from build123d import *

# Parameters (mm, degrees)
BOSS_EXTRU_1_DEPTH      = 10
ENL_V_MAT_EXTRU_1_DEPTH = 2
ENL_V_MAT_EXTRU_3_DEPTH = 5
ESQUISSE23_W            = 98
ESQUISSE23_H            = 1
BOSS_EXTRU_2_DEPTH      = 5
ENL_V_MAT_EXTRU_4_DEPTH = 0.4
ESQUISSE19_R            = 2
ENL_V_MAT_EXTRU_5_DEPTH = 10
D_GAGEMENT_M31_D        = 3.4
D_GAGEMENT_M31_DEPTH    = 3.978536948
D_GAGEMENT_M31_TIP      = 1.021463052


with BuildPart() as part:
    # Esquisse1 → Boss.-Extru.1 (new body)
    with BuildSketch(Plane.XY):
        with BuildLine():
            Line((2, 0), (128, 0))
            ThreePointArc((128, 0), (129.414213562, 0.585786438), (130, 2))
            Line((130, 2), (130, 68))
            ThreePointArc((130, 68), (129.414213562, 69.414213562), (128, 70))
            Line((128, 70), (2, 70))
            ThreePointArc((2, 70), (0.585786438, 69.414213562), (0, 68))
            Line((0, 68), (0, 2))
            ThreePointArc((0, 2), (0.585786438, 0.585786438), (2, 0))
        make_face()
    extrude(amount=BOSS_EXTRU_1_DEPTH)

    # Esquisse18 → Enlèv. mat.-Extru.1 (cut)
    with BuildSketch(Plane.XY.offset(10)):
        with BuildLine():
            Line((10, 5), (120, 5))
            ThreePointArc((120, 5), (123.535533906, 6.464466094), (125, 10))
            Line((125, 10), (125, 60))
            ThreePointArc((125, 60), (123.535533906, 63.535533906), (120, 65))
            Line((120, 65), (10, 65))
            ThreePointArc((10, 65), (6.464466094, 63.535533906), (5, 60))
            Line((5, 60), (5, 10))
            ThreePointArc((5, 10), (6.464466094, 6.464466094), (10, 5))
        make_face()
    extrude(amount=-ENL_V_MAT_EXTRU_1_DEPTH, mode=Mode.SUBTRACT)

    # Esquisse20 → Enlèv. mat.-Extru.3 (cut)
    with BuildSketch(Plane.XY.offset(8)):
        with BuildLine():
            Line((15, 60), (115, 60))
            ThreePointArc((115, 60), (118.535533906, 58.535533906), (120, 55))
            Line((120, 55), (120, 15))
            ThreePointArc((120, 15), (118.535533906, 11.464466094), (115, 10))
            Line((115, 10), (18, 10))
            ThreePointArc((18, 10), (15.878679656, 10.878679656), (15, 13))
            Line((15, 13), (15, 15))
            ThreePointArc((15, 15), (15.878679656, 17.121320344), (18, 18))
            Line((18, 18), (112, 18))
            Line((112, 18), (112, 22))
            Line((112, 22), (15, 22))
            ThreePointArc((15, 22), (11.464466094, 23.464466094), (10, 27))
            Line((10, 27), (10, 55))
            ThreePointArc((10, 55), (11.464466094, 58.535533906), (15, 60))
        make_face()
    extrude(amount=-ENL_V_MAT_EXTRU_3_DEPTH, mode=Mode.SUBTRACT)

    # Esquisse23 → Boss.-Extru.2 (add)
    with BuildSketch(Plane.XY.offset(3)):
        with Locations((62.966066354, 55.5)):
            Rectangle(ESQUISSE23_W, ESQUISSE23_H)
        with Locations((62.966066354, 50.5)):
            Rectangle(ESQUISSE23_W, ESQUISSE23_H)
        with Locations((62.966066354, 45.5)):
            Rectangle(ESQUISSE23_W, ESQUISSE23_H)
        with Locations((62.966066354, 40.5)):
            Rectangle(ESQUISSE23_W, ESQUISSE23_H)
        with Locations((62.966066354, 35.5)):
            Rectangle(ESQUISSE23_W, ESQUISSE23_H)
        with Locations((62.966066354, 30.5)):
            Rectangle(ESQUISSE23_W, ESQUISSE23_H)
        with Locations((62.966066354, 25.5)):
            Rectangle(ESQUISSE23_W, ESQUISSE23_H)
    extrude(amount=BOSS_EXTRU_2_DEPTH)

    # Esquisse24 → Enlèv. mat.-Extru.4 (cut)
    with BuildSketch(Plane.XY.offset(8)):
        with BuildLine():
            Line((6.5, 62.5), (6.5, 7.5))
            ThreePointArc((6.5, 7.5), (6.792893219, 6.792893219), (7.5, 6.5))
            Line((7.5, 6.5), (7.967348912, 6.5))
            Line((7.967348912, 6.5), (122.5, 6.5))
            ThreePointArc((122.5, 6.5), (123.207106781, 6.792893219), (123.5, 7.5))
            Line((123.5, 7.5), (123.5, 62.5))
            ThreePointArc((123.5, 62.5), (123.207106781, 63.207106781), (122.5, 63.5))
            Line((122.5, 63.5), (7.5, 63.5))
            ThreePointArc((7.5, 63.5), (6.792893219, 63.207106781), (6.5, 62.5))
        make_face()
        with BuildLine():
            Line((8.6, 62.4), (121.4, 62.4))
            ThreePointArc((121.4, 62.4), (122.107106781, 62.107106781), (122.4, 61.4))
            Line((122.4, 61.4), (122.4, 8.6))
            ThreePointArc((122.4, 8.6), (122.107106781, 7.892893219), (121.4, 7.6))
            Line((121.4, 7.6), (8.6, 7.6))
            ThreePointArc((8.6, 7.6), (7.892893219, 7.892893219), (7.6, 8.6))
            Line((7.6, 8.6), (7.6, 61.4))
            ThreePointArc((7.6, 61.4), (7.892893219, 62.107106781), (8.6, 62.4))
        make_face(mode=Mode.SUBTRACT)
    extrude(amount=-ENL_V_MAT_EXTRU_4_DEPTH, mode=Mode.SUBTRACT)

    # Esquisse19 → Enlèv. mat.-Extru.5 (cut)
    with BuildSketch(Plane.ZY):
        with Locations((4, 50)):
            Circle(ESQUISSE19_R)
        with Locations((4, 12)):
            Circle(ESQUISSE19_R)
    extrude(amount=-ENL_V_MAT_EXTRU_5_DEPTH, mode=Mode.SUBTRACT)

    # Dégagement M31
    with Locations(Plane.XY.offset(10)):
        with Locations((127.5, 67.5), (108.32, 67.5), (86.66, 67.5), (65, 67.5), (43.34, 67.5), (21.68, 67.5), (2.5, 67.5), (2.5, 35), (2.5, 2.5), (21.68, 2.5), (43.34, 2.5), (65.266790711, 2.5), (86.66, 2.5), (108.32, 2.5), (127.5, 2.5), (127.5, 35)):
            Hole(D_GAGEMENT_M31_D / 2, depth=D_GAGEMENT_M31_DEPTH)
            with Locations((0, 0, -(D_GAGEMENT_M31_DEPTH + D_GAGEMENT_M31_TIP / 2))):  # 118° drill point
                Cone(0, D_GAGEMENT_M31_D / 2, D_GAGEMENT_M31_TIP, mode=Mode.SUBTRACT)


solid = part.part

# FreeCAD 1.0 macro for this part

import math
import FreeCAD as App
import Part
import Sketcher
from FreeCAD import Vector
Q = App.Units.Quantity


def add_polygon(sketch, points):
    """Adds a closed chain of lines whose ends are joined by coincident constraints."""
    first, n = sketch.GeometryCount, len(points)
    for a, b in zip(points, points[1:] + points[:1]):
        sketch.addGeometry(Part.LineSegment(App.Vector(*a, 0), App.Vector(*b, 0)), False)
    for i in range(n):
        sketch.addConstraint(Sketcher.Constraint("Coincident", first + i, 2, first + (i + 1) % n, 1))

doc = App.newDocument("Part")
params = doc.addObject("Spreadsheet::Sheet", "Params")
for row, (alias, value) in enumerate([
    ("sketch1_radius", "2 mm"),
    ("sketch1_width", "126 mm"),
    ("sketch1_height", "66 mm"),
    ("pad1_length", "10 mm"),
    ("sketch2_radius", "5 mm"),
    ("sketch2_width", "110 mm"),
    ("sketch2_height", "50 mm"),
    ("pocket1_length", "2 mm"),
    ("sketch3_radius", "5 mm"),
    ("sketch3_radius2", "3 mm"),
    ("sketch3_width", "100 mm"),
    ("sketch3_height", "28 mm"),
    ("sketch3_height2", "4 mm"),
    ("pocket2_length", "5 mm"),
    ("sketch4_width", "98 mm"),
    ("sketch4_height", "1 mm"),
    ("pad2_length", "5 mm"),
    ("sketch5_radius", "1 mm"),
    ("sketch5_width", "115 mm"),
    ("sketch5_height", "55 mm"),
    ("sketch5_width2", "112.8 mm"),
    ("sketch5_height2", "52.8 mm"),
    ("pocket3_length", "0.4 mm"),
    ("sketch6_diameter", "4 mm"),
    ("pocket4_length", "10 mm"),
    ("sketch7_diameter", "3.4 mm"),
    ("hole_diameter", "3.4 mm"),
    ("hole_depth", "3.978537 mm"),
], start=1):
    params.set(f"A{row}", alias)
    params.set(f"B{row}", "=" + value)
    params.setAlias(f"B{row}", alias)

body = doc.addObject("PartDesign::Body", "Body")

# Sketch on XY plane
sketch1 = body.newObject("Sketcher::SketchObject", "Sketch")
sketch1.AttachmentSupport = (doc.getObject("XY_Plane"), [""])
sketch1.MapMode = "FlatFace"
sketch1.addGeometry([
    Part.LineSegment(Vector(2, 0, 0), Vector(128, 0, 0)),  # 0
    Part.ArcOfCircle(Part.Circle(Vector(128, 2, 0), Vector(0, 0, 1), 2), math.radians(-90), math.radians(0)),  # 1
    Part.LineSegment(Vector(130, 2, 0), Vector(130, 68, 0)),  # 2
    Part.ArcOfCircle(Part.Circle(Vector(128, 68, 0), Vector(0, 0, 1), 2), math.radians(0), math.radians(90)),  # 3
    Part.LineSegment(Vector(128, 70, 0), Vector(2, 70, 0)),  # 4
    Part.ArcOfCircle(Part.Circle(Vector(2, 68, 0), Vector(0, 0, 1), 2), math.radians(90), math.radians(180)),  # 5
    Part.LineSegment(Vector(0, 68, 0), Vector(0, 2, 0)),  # 6
    Part.ArcOfCircle(Part.Circle(Vector(2, 2, 0), Vector(0, 0, 1), 2), math.radians(-180), math.radians(-90)),  # 7
], False)
sketch1.addConstraint([
    Sketcher.Constraint("Tangent", 0, 2, 1, 1),
    Sketcher.Constraint("Tangent", 1, 2, 2, 1),
    Sketcher.Constraint("Tangent", 2, 2, 3, 1),
    Sketcher.Constraint("Tangent", 3, 2, 4, 1),
    Sketcher.Constraint("Tangent", 4, 2, 5, 1),
    Sketcher.Constraint("Tangent", 5, 2, 6, 1),
    Sketcher.Constraint("Tangent", 6, 2, 7, 1),
    Sketcher.Constraint("Tangent", 7, 2, 0, 1),
    Sketcher.Constraint("Horizontal", 0),
    Sketcher.Constraint("Vertical", 2),
    Sketcher.Constraint("Horizontal", 4),
    Sketcher.Constraint("Vertical", 6),
    Sketcher.Constraint("Equal", 1, 3),
    Sketcher.Constraint("Equal", 3, 5),
    Sketcher.Constraint("Equal", 5, 7),
    Sketcher.Constraint("PointOnObject", 0, 2, -1),
    Sketcher.Constraint("PointOnObject", 5, 2, -2),
    Sketcher.Constraint("Radius", 1, Q("2 mm")),
    Sketcher.Constraint("DistanceX", 0, 1, 0, 2, Q("126 mm")),
    Sketcher.Constraint("DistanceY", 2, 1, 2, 2, Q("66 mm")),
])
sketch1.setExpression("Constraints[17]", "Params.sketch1_radius")
sketch1.setExpression("Constraints[18]", "Params.sketch1_width")
sketch1.setExpression("Constraints[19]", "Params.sketch1_height")
pad1 = body.newObject("PartDesign::Pad", "Pad")
pad1.Profile = sketch1
pad1.setExpression("Length", "Params.pad1_length")

# Sketch on XY plane
sketch2 = body.newObject("Sketcher::SketchObject", "Sketch001")
sketch2.AttachmentSupport = (doc.getObject("XY_Plane"), [""])
sketch2.MapMode = "FlatFace"
sketch2.AttachmentOffset = App.Placement(Vector(0, 0, 10), App.Rotation())
sketch2.addGeometry([
    Part.LineSegment(Vector(10, 5, 0), Vector(120, 5, 0)),  # 0
    Part.ArcOfCircle(Part.Circle(Vector(120, 10, 0), Vector(0, 0, 1), 5), math.radians(-90), math.radians(0)),  # 1
    Part.LineSegment(Vector(125, 10, 0), Vector(125, 60, 0)),  # 2
    Part.ArcOfCircle(Part.Circle(Vector(120, 60, 0), Vector(0, 0, 1), 5), math.radians(0), math.radians(90)),  # 3
    Part.LineSegment(Vector(120, 65, 0), Vector(10, 65, 0)),  # 4
    Part.ArcOfCircle(Part.Circle(Vector(10, 60, 0), Vector(0, 0, 1), 5), math.radians(90), math.radians(180)),  # 5
    Part.LineSegment(Vector(5, 60, 0), Vector(5, 10, 0)),  # 6
    Part.ArcOfCircle(Part.Circle(Vector(10, 10, 0), Vector(0, 0, 1), 5), math.radians(180), math.radians(270)),  # 7
], False)
sketch2.addConstraint([
    Sketcher.Constraint("Tangent", 0, 2, 1, 1),
    Sketcher.Constraint("Tangent", 1, 2, 2, 1),
    Sketcher.Constraint("Tangent", 2, 2, 3, 1),
    Sketcher.Constraint("Tangent", 3, 2, 4, 1),
    Sketcher.Constraint("Tangent", 4, 2, 5, 1),
    Sketcher.Constraint("Tangent", 5, 2, 6, 1),
    Sketcher.Constraint("Tangent", 6, 2, 7, 1),
    Sketcher.Constraint("Tangent", 7, 2, 0, 1),
    Sketcher.Constraint("Horizontal", 0),
    Sketcher.Constraint("Vertical", 2),
    Sketcher.Constraint("Horizontal", 4),
    Sketcher.Constraint("Vertical", 6),
    Sketcher.Constraint("Equal", 1, 3),
    Sketcher.Constraint("Equal", 3, 5),
    Sketcher.Constraint("Equal", 5, 7),
    Sketcher.Constraint("Radius", 1, Q("5 mm")),
    Sketcher.Constraint("DistanceX", 0, 1, 0, 2, Q("110 mm")),
    Sketcher.Constraint("DistanceY", 2, 1, 2, 2, Q("50 mm")),
    Sketcher.Constraint("DistanceX", -1, 1, 1, 3, Q("120 mm")),
    Sketcher.Constraint("DistanceY", -1, 1, 1, 3, Q("10 mm")),
])
sketch2.setExpression("Constraints[15]", "Params.sketch2_radius")
sketch2.setExpression("Constraints[16]", "Params.sketch2_width")
sketch2.setExpression("Constraints[17]", "Params.sketch2_height")
pocket1 = body.newObject("PartDesign::Pocket", "Pocket")
pocket1.Profile = sketch2
pocket1.setExpression("Length", "Params.pocket1_length")

# Sketch on XY plane
sketch3 = body.newObject("Sketcher::SketchObject", "Sketch002")
sketch3.AttachmentSupport = (doc.getObject("XY_Plane"), [""])
sketch3.MapMode = "FlatFace"
sketch3.AttachmentOffset = App.Placement(Vector(0, 0, 8), App.Rotation())
sketch3.addGeometry([
    Part.LineSegment(Vector(115, 60, 0), Vector(15, 60, 0)),  # 0
    Part.ArcOfCircle(Part.Circle(Vector(15, 55, 0), Vector(0, 0, 1), 5), math.radians(90), math.radians(180)),  # 1
    Part.LineSegment(Vector(10, 55, 0), Vector(10, 27, 0)),  # 2
    Part.ArcOfCircle(Part.Circle(Vector(15, 27, 0), Vector(0, 0, 1), 5), math.radians(180), math.radians(270)),  # 3
    Part.LineSegment(Vector(15, 22, 0), Vector(112, 22, 0)),  # 4
    Part.LineSegment(Vector(112, 22, 0), Vector(112, 18, 0)),  # 5
    Part.LineSegment(Vector(112, 18, 0), Vector(18, 18, 0)),  # 6
    Part.ArcOfCircle(Part.Circle(Vector(18, 15, 0), Vector(0, 0, 1), 3), math.radians(90), math.radians(180)),  # 7
    Part.LineSegment(Vector(15, 15, 0), Vector(15, 13, 0)),  # 8
    Part.ArcOfCircle(Part.Circle(Vector(18, 13, 0), Vector(0, 0, 1), 3), math.radians(180), math.radians(270)),  # 9
    Part.LineSegment(Vector(18, 10, 0), Vector(115, 10, 0)),  # 10
    Part.ArcOfCircle(Part.Circle(Vector(115, 15, 0), Vector(0, 0, 1), 5), math.radians(-90), math.radians(0)),  # 11
    Part.LineSegment(Vector(120, 15, 0), Vector(120, 55, 0)),  # 12
    Part.ArcOfCircle(Part.Circle(Vector(115, 55, 0), Vector(0, 0, 1), 5), math.radians(0), math.radians(90)),  # 13
], False)
sketch3.addConstraint([
    Sketcher.Constraint("Tangent", 0, 2, 1, 1),
    Sketcher.Constraint("Tangent", 1, 2, 2, 1),
    Sketcher.Constraint("Tangent", 2, 2, 3, 1),
    Sketcher.Constraint("Tangent", 3, 2, 4, 1),
    Sketcher.Constraint("Coincident", 4, 2, 5, 1),
    Sketcher.Constraint("Coincident", 5, 2, 6, 1),
    Sketcher.Constraint("Tangent", 6, 2, 7, 1),
    Sketcher.Constraint("Tangent", 7, 2, 8, 1),
    Sketcher.Constraint("Tangent", 8, 2, 9, 1),
    Sketcher.Constraint("Tangent", 9, 2, 10, 1),
    Sketcher.Constraint("Tangent", 10, 2, 11, 1),
    Sketcher.Constraint("Tangent", 11, 2, 12, 1),
    Sketcher.Constraint("Tangent", 12, 2, 13, 1),
    Sketcher.Constraint("Tangent", 13, 2, 0, 1),
    Sketcher.Constraint("Horizontal", 0),
    Sketcher.Constraint("Vertical", 2),
    Sketcher.Constraint("Horizontal", 4),
    Sketcher.Constraint("Vertical", 5),
    Sketcher.Constraint("Horizontal", 6),
    Sketcher.Constraint("Vertical", 8),
    Sketcher.Constraint("Horizontal", 10),
    Sketcher.Constraint("Vertical", 12),
    Sketcher.Constraint("Equal", 1, 3),
    Sketcher.Constraint("Equal", 7, 9),
    Sketcher.Constraint("Equal", 3, 11),
    Sketcher.Constraint("Equal", 11, 13),
    Sketcher.Constraint("Horizontal", 7, 3, 11, 3),
    Sketcher.Constraint("Vertical", 3, 2, 7, 2),
    Sketcher.Constraint("Equal", 4, 10),
    Sketcher.Constraint("Radius", 1, Q("5 mm")),
    Sketcher.Constraint("Radius", 7, Q("3 mm")),
    Sketcher.Constraint("DistanceX", 0, 2, 0, 1, Q("100 mm")),
    Sketcher.Constraint("DistanceY", 2, 2, 2, 1, Q("28 mm")),
    Sketcher.Constraint("DistanceY", 5, 2, 5, 1, Q("4 mm")),
    Sketcher.Constraint("DistanceX", -1, 1, 1, 3, Q("15 mm")),
    Sketcher.Constraint("DistanceY", -1, 1, 1, 3, Q("55 mm")),
])
sketch3.setExpression("Constraints[29]", "Params.sketch3_radius")
sketch3.setExpression("Constraints[30]", "Params.sketch3_radius2")
sketch3.setExpression("Constraints[31]", "Params.sketch3_width")
sketch3.setExpression("Constraints[32]", "Params.sketch3_height")
sketch3.setExpression("Constraints[33]", "Params.sketch3_height2")
pocket2 = body.newObject("PartDesign::Pocket", "Pocket001")
pocket2.Profile = sketch3
pocket2.setExpression("Length", "Params.pocket2_length")

# Sketch on XY plane
sketch4 = body.newObject("Sketcher::SketchObject", "Sketch003")
sketch4.AttachmentSupport = (doc.getObject("XY_Plane"), [""])
sketch4.MapMode = "FlatFace"
sketch4.AttachmentOffset = App.Placement(Vector(0, 0, 3), App.Rotation())
add_polygon(sketch4, [(14, 56), (14, 55), (112, 55), (112, 56)])  # lines 0-3
add_polygon(sketch4, [(14, 51), (14, 50), (112, 50), (112, 51)])  # lines 4-7
add_polygon(sketch4, [(14, 46), (14, 45), (112, 45), (112, 46)])  # lines 8-11
add_polygon(sketch4, [(14, 41), (14, 40), (112, 40), (112, 41)])  # lines 12-15
add_polygon(sketch4, [(14, 36), (14, 35), (112, 35), (112, 36)])  # lines 16-19
add_polygon(sketch4, [(14, 31), (14, 30), (112, 30), (112, 31)])  # lines 20-23
add_polygon(sketch4, [(14, 26), (14, 25), (112, 25), (112, 26)])  # lines 24-27
sketch4.addConstraint([
    Sketcher.Constraint("Vertical", 0),
    Sketcher.Constraint("Horizontal", 1),
    Sketcher.Constraint("Vertical", 2),
    Sketcher.Constraint("Horizontal", 3),
    Sketcher.Constraint("Vertical", 4),
    Sketcher.Constraint("Horizontal", 5),
    Sketcher.Constraint("Vertical", 6),
    Sketcher.Constraint("Horizontal", 7),
    Sketcher.Constraint("Vertical", 8),
    Sketcher.Constraint("Horizontal", 9),
    Sketcher.Constraint("Vertical", 10),
    Sketcher.Constraint("Horizontal", 11),
    Sketcher.Constraint("Vertical", 12),
    Sketcher.Constraint("Horizontal", 13),
    Sketcher.Constraint("Vertical", 14),
    Sketcher.Constraint("Horizontal", 15),
    Sketcher.Constraint("Vertical", 16),
    Sketcher.Constraint("Horizontal", 17),
    Sketcher.Constraint("Vertical", 18),
    Sketcher.Constraint("Horizontal", 19),
    Sketcher.Constraint("Vertical", 20),
    Sketcher.Constraint("Horizontal", 21),
    Sketcher.Constraint("Vertical", 22),
    Sketcher.Constraint("Horizontal", 23),
    Sketcher.Constraint("Vertical", 24),
    Sketcher.Constraint("Horizontal", 25),
    Sketcher.Constraint("Vertical", 26),
    Sketcher.Constraint("Horizontal", 27),
    Sketcher.Constraint("Vertical", 3, 2, 4, 2),
    Sketcher.Constraint("Vertical", 2, 2, 5, 2),
    Sketcher.Constraint("Vertical", 7, 2, 8, 2),
    Sketcher.Constraint("Vertical", 6, 2, 9, 2),
    Sketcher.Constraint("Vertical", 11, 2, 12, 2),
    Sketcher.Constraint("Vertical", 10, 2, 13, 2),
    Sketcher.Constraint("Vertical", 15, 2, 16, 2),
    Sketcher.Constraint("Vertical", 14, 2, 17, 2),
    Sketcher.Constraint("Vertical", 19, 2, 20, 2),
    Sketcher.Constraint("Vertical", 18, 2, 21, 2),
    Sketcher.Constraint("Vertical", 23, 2, 24, 2),
    Sketcher.Constraint("Vertical", 22, 2, 25, 2),
    Sketcher.Constraint("Equal", 2, 4),
    Sketcher.Constraint("Equal", 6, 8),
    Sketcher.Constraint("Equal", 10, 12),
    Sketcher.Constraint("Equal", 14, 16),
    Sketcher.Constraint("Equal", 18, 20),
    Sketcher.Constraint("Equal", 22, 24),
    Sketcher.Constraint("DistanceX", 1, 1, 1, 2, Q("98 mm")),
    Sketcher.Constraint("DistanceY", 0, 2, 0, 1, Q("1 mm")),
    Sketcher.Constraint("DistanceY", -1, 1, 0, 2, Q("55 mm")),
    Sketcher.Constraint("DistanceY", -1, 1, 4, 2, Q("50 mm")),
    Sketcher.Constraint("DistanceY", -1, 1, 8, 2, Q("45 mm")),
    Sketcher.Constraint("DistanceY", -1, 1, 12, 2, Q("40 mm")),
    Sketcher.Constraint("DistanceY", -1, 1, 16, 2, Q("35 mm")),
    Sketcher.Constraint("DistanceY", -1, 1, 20, 2, Q("30 mm")),
    Sketcher.Constraint("DistanceY", -1, 1, 24, 2, Q("25 mm")),
    Sketcher.Constraint("DistanceX", -1, 1, 0, 2, Q("13.966066 mm")),
])
sketch4.setExpression("Constraints[74]", "Params.sketch4_width")
sketch4.setExpression("Constraints[75]", "Params.sketch4_height")
pad2 = body.newObject("PartDesign::Pad", "Pad001")
pad2.Profile = sketch4
pad2.setExpression("Length", "Params.pad2_length")

# Sketch on XY plane
sketch5 = body.newObject("Sketcher::SketchObject", "Sketch004")
sketch5.AttachmentSupport = (doc.getObject("XY_Plane"), [""])
sketch5.MapMode = "FlatFace"
sketch5.AttachmentOffset = App.Placement(Vector(0, 0, 8), App.Rotation())
sketch5.addGeometry([
    Part.LineSegment(Vector(6.5, 62.5, 0), Vector(6.5, 7.5, 0)),  # 0
    Part.ArcOfCircle(Part.Circle(Vector(7.5, 7.5, 0), Vector(0, 0, 1), 1), math.radians(-180), math.radians(-90)),  # 1
    Part.LineSegment(Vector(7.5, 6.5, 0), Vector(122.5, 6.5, 0)),  # 2
    Part.ArcOfCircle(Part.Circle(Vector(122.5, 7.5, 0), Vector(0, 0, 1), 1), math.radians(-90), math.radians(0)),  # 3
    Part.LineSegment(Vector(123.5, 7.5, 0), Vector(123.5, 62.5, 0)),  # 4
    Part.ArcOfCircle(Part.Circle(Vector(122.5, 62.5, 0), Vector(0, 0, 1), 1), math.radians(0), math.radians(90)),  # 5
    Part.LineSegment(Vector(122.5, 63.5, 0), Vector(7.5, 63.5, 0)),  # 6
    Part.ArcOfCircle(Part.Circle(Vector(7.5, 62.5, 0), Vector(0, 0, 1), 1), math.radians(90), math.radians(180)),  # 7
    Part.ArcOfCircle(Part.Circle(Vector(8.6, 61.4, 0), Vector(0, 0, 1), 1), math.radians(90), math.radians(180)),  # 8
    Part.LineSegment(Vector(8.6, 62.4, 0), Vector(121.4, 62.4, 0)),  # 9
    Part.ArcOfCircle(Part.Circle(Vector(121.4, 61.4, 0), Vector(0, 0, 1), 1), math.radians(0), math.radians(90)),  # 10
    Part.LineSegment(Vector(122.4, 61.4, 0), Vector(122.4, 8.6, 0)),  # 11
    Part.ArcOfCircle(Part.Circle(Vector(121.4, 8.6, 0), Vector(0, 0, 1), 1), math.radians(-90), math.radians(0)),  # 12
    Part.LineSegment(Vector(121.4, 7.6, 0), Vector(8.6, 7.6, 0)),  # 13
    Part.ArcOfCircle(Part.Circle(Vector(8.6, 8.6, 0), Vector(0, 0, 1), 1), math.radians(-180), math.radians(-90)),  # 14
    Part.LineSegment(Vector(7.6, 8.6, 0), Vector(7.6, 61.4, 0)),  # 15
], False)
sketch5.addConstraint([
    Sketcher.Constraint("Tangent", 0, 2, 1, 1),
    Sketcher.Constraint("Tangent", 1, 2, 2, 1),
    Sketcher.Constraint("Tangent", 2, 2, 3, 1),
    Sketcher.Constraint("Tangent", 3, 2, 4, 1),
    Sketcher.Constraint("Tangent", 4, 2, 5, 1),
    Sketcher.Constraint("Tangent", 5, 2, 6, 1),
    Sketcher.Constraint("Tangent", 6, 2, 7, 1),
    Sketcher.Constraint("Tangent", 7, 2, 0, 1),
    Sketcher.Constraint("Tangent", 8, 1, 9, 1),
    Sketcher.Constraint("Tangent", 9, 2, 10, 2),
    Sketcher.Constraint("Tangent", 10, 1, 11, 1),
    Sketcher.Constraint("Tangent", 11, 2, 12, 2),
    Sketcher.Constraint("Tangent", 12, 1, 13, 1),
    Sketcher.Constraint("Tangent", 13, 2, 14, 2),
    Sketcher.Constraint("Tangent", 14, 1, 15, 1),
    Sketcher.Constraint("Tangent", 15, 2, 8, 2),
    Sketcher.Constraint("Vertical", 0),
    Sketcher.Constraint("Horizontal", 2),
    Sketcher.Constraint("Vertical", 4),
    Sketcher.Constraint("Horizontal", 6),
    Sketcher.Constraint("Horizontal", 9),
    Sketcher.Constraint("Vertical", 11),
    Sketcher.Constraint("Horizontal", 13),
    Sketcher.Constraint("Vertical", 15),
    Sketcher.Constraint("Equal", 1, 3),
    Sketcher.Constraint("Equal", 3, 5),
    Sketcher.Constraint("Equal", 5, 7),
    Sketcher.Constraint("Equal", 7, 8),
    Sketcher.Constraint("Equal", 8, 10),
    Sketcher.Constraint("Equal", 10, 12),
    Sketcher.Constraint("Equal", 12, 14),
    Sketcher.Constraint("Radius", 1, Q("1 mm")),
    Sketcher.Constraint("DistanceX", 2, 1, 2, 2, Q("115 mm")),
    Sketcher.Constraint("DistanceY", 0, 2, 0, 1, Q("55 mm")),
    Sketcher.Constraint("DistanceX", 9, 1, 9, 2, Q("112.8 mm")),
    Sketcher.Constraint("DistanceY", 11, 2, 11, 1, Q("52.8 mm")),
    Sketcher.Constraint("DistanceX", -1, 1, 1, 3, Q("7.5 mm")),
    Sketcher.Constraint("DistanceY", -1, 1, 1, 3, Q("7.5 mm")),
    Sketcher.Constraint("DistanceX", -1, 1, 8, 3, Q("8.6 mm")),
    Sketcher.Constraint("DistanceY", -1, 1, 8, 3, Q("61.4 mm")),
])
sketch5.setExpression("Constraints[31]", "Params.sketch5_radius")
sketch5.setExpression("Constraints[32]", "Params.sketch5_width")
sketch5.setExpression("Constraints[33]", "Params.sketch5_height")
sketch5.setExpression("Constraints[34]", "Params.sketch5_width2")
sketch5.setExpression("Constraints[35]", "Params.sketch5_height2")
pocket3 = body.newObject("PartDesign::Pocket", "Pocket002")
pocket3.Profile = sketch5
pocket3.setExpression("Length", "Params.pocket3_length")

# Sketch on YZ plane
sketch6 = body.newObject("Sketcher::SketchObject", "Sketch005")
sketch6.AttachmentSupport = (doc.getObject("YZ_Plane"), [""])
sketch6.MapMode = "FlatFace"
sketch6.addGeometry([
    Part.Circle(Vector(50, 4, 0), Vector(0, 0, 1), 2),
    Part.Circle(Vector(12, 4, 0), Vector(0, 0, 1), 2),
], False)
sketch6.addConstraint([
    Sketcher.Constraint("Equal", 0, 1),
    Sketcher.Constraint("Horizontal", 0, 3, 1, 3),
    Sketcher.Constraint("Diameter", 0, Q("4 mm")),
    Sketcher.Constraint("DistanceX", -1, 1, 0, 3, Q("50 mm")),
    Sketcher.Constraint("DistanceY", -1, 1, 0, 3, Q("4 mm")),
    Sketcher.Constraint("DistanceX", -1, 1, 1, 3, Q("12 mm")),
])
sketch6.setExpression("Constraints[2]", "Params.sketch6_diameter")
pocket4 = body.newObject("PartDesign::Pocket", "Pocket003")
pocket4.Profile = sketch6
pocket4.setExpression("Length", "Params.pocket4_length")
pocket4.Reversed = True

# Sketch on XY plane
sketch7 = body.newObject("Sketcher::SketchObject", "Sketch006")
sketch7.AttachmentSupport = (doc.getObject("XY_Plane"), [""])
sketch7.MapMode = "FlatFace"
sketch7.AttachmentOffset = App.Placement(Vector(0, 0, 10), App.Rotation())
sketch7.addGeometry([
    Part.Circle(Vector(127.5, 67.5, 0), Vector(0, 0, 1), 1.7),  # 0
    Part.Circle(Vector(108.3, 67.5, 0), Vector(0, 0, 1), 1.7),  # 1
    Part.Circle(Vector(86.7, 67.5, 0), Vector(0, 0, 1), 1.7),  # 2
    Part.Circle(Vector(65, 67.5, 0), Vector(0, 0, 1), 1.7),  # 3
    Part.Circle(Vector(43.3, 67.5, 0), Vector(0, 0, 1), 1.7),  # 4
    Part.Circle(Vector(21.7, 67.5, 0), Vector(0, 0, 1), 1.7),  # 5
    Part.Circle(Vector(2.5, 67.5, 0), Vector(0, 0, 1), 1.7),  # 6
    Part.Circle(Vector(2.5, 35, 0), Vector(0, 0, 1), 1.7),  # 7
    Part.Circle(Vector(2.5, 2.5, 0), Vector(0, 0, 1), 1.7),  # 8
    Part.Circle(Vector(21.7, 2.5, 0), Vector(0, 0, 1), 1.7),  # 9
    Part.Circle(Vector(43.3, 2.5, 0), Vector(0, 0, 1), 1.7),  # 10
    Part.Circle(Vector(65.3, 2.5, 0), Vector(0, 0, 1), 1.7),  # 11
    Part.Circle(Vector(86.7, 2.5, 0), Vector(0, 0, 1), 1.7),  # 12
    Part.Circle(Vector(108.3, 2.5, 0), Vector(0, 0, 1), 1.7),  # 13
    Part.Circle(Vector(127.5, 2.5, 0), Vector(0, 0, 1), 1.7),  # 14
    Part.Circle(Vector(127.5, 35, 0), Vector(0, 0, 1), 1.7),  # 15
], False)
sketch7.addConstraint([
    Sketcher.Constraint("Equal", 0, 1),
    Sketcher.Constraint("Equal", 1, 2),
    Sketcher.Constraint("Equal", 2, 3),
    Sketcher.Constraint("Equal", 3, 4),
    Sketcher.Constraint("Equal", 4, 5),
    Sketcher.Constraint("Equal", 5, 6),
    Sketcher.Constraint("Equal", 6, 7),
    Sketcher.Constraint("Equal", 7, 8),
    Sketcher.Constraint("Equal", 8, 9),
    Sketcher.Constraint("Equal", 9, 10),
    Sketcher.Constraint("Equal", 10, 11),
    Sketcher.Constraint("Equal", 11, 12),
    Sketcher.Constraint("Equal", 12, 13),
    Sketcher.Constraint("Equal", 13, 14),
    Sketcher.Constraint("Equal", 14, 15),
    Sketcher.Constraint("Horizontal", 0, 3, 1, 3),
    Sketcher.Constraint("Horizontal", 1, 3, 2, 3),
    Sketcher.Constraint("Horizontal", 2, 3, 3, 3),
    Sketcher.Constraint("Horizontal", 3, 3, 4, 3),
    Sketcher.Constraint("Horizontal", 4, 3, 5, 3),
    Sketcher.Constraint("Horizontal", 5, 3, 6, 3),
    Sketcher.Constraint("Horizontal", 8, 3, 9, 3),
    Sketcher.Constraint("Horizontal", 9, 3, 10, 3),
    Sketcher.Constraint("Horizontal", 10, 3, 11, 3),
    Sketcher.Constraint("Horizontal", 11, 3, 12, 3),
    Sketcher.Constraint("Horizontal", 12, 3, 13, 3),
    Sketcher.Constraint("Horizontal", 13, 3, 14, 3),
    Sketcher.Constraint("Horizontal", 7, 3, 15, 3),
    Sketcher.Constraint("Vertical", 6, 3, 7, 3),
    Sketcher.Constraint("Vertical", 7, 3, 8, 3),
    Sketcher.Constraint("Vertical", 5, 3, 9, 3),
    Sketcher.Constraint("Vertical", 4, 3, 10, 3),
    Sketcher.Constraint("Vertical", 2, 3, 12, 3),
    Sketcher.Constraint("Vertical", 1, 3, 13, 3),
    Sketcher.Constraint("Vertical", 0, 3, 14, 3),
    Sketcher.Constraint("Vertical", 14, 3, 15, 3),
    Sketcher.Constraint("Diameter", 0, Q("3.4 mm")),
    Sketcher.Constraint("DistanceX", -1, 1, 3, 3, Q("65 mm")),
    Sketcher.Constraint("DistanceY", -1, 1, 7, 3, Q("35 mm")),
    Sketcher.Constraint("DistanceY", 8, 3, 6, 3, Q("65 mm")),
    Sketcher.Constraint("DistanceX", -1, 1, 0, 3, Q("127.5 mm")),
    Sketcher.Constraint("DistanceY", -1, 1, 0, 3, Q("67.5 mm")),
    Sketcher.Constraint("DistanceX", -1, 1, 6, 3, Q("2.5 mm")),
    Sketcher.Constraint("DistanceX", -1, 1, 1, 3, Q("108.32 mm")),
    Sketcher.Constraint("DistanceX", -1, 1, 2, 3, Q("86.66 mm")),
    Sketcher.Constraint("DistanceX", -1, 1, 4, 3, Q("43.34 mm")),
    Sketcher.Constraint("DistanceX", -1, 1, 5, 3, Q("21.68 mm")),
    Sketcher.Constraint("DistanceX", -1, 1, 11, 3, Q("65.266791 mm")),
])
sketch7.setExpression("Constraints[36]", "Params.sketch7_diameter")
doc.recompute()
hole = body.newObject("PartDesign::Hole", "Hole")
hole.Profile = sketch7
hole.ThreadType = "None"
hole.setExpression("Diameter", "Params.hole_diameter")
hole.DepthType = "Dimension"
hole.setExpression("Depth", "Params.hole_depth")
hole.DrillPoint = "Angled"
hole.DrillPointAngle = 118

doc.recompute()
